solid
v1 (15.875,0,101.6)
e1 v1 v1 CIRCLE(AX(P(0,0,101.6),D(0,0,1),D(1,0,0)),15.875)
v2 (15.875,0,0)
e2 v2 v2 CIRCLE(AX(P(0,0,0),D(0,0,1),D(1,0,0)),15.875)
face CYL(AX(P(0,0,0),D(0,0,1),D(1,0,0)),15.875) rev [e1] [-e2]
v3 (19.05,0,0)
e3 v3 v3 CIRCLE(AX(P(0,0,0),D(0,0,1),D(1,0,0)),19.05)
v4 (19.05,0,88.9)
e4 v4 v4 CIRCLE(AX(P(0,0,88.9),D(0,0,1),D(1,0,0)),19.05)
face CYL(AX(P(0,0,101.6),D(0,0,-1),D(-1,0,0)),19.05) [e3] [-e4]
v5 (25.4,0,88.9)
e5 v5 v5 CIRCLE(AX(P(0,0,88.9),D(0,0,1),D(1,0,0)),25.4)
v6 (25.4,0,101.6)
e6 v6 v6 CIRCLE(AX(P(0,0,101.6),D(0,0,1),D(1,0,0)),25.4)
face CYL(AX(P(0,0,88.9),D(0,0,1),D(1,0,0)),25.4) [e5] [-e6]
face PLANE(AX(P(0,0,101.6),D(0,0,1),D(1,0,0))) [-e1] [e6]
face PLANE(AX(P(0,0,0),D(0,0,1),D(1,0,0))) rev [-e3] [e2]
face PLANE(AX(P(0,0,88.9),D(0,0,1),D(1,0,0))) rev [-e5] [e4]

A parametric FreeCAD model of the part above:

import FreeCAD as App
import Part
import Sketcher
from FreeCAD import Vector
Q = App.Units.Quantity

doc = App.newDocument("Part")
body = doc.addObject("PartDesign::Body", "Body")

# Sketch on XY plane
sketch1 = doc.addObject("Sketcher::SketchObject", "Sketch")
body.addObject(sketch1)
sketch1.AttachmentSupport = (doc.XY_Plane, [""])
sketch1.MapMode = "FlatFace"
sketch1.addGeometry(Part.Circle(Vector(0, 0, 0), Vector(0, 0, 1), 19), False)
sketch1.addConstraint([
    Sketcher.Constraint("Coincident", 0, 3, -1, 1),
    Sketcher.Constraint("Diameter", 0, Q("1.5 in")),
])
pad1 = doc.addObject("PartDesign::Pad", "Pad")
body.addObject(pad1)
pad1.Profile = sketch1
pad1.Length = Q("4 in")

# Sketch on XY plane
sketch2 = doc.addObject("Sketcher::SketchObject", "Sketch001")
body.addObject(sketch2)
sketch2.AttachmentSupport = (doc.XY_Plane, [""])
sketch2.MapMode = "FlatFace"
sketch2.AttachmentOffset = App.Placement(Vector(0, 0, 4 * 25.4), App.Rotation())
sketch2.addGeometry(Part.Circle(Vector(0, 0, 0), Vector(0, 0, 1), 16), False)
sketch2.addConstraint([
    Sketcher.Constraint("Coincident", 0, 3, -1, 1),
    Sketcher.Constraint("Diameter", 0, Q("1.25 in")),
])
pocket1 = doc.addObject("PartDesign::Pocket", "Pocket")
body.addObject(pocket1)
pocket1.Profile = sketch2
pocket1.Length = Q("4 in")

# Sketch on XY plane
sketch3 = doc.addObject("Sketcher::SketchObject", "Sketch002")
body.addObject(sketch3)
sketch3.AttachmentSupport = (doc.XY_Plane, [""])
sketch3.MapMode = "FlatFace"
sketch3.AttachmentOffset = App.Placement(Vector(0, 0, 4 * 25.4), App.Rotation())
sketch3.addGeometry(Part.Circle(Vector(0, 0, 0), Vector(0, 0, 1), 25), False)
sketch3.addConstraint([
    Sketcher.Constraint("Coincident", 0, 3, -1, 1),
    Sketcher.Constraint("Diameter", 0, Q("2 in")),
])
pad2 = doc.addObject("PartDesign::Pad", "Pad001")
body.addObject(pad2)
pad2.Profile = sketch3
pad2.Length = Q("0.5 in")
pad2.Reversed = True

# Sketch on XY plane
sketch4 = doc.addObject("Sketcher::SketchObject", "Sketch003")
body.addObject(sketch4)
sketch4.AttachmentSupport = (doc.XY_Plane, [""])
sketch4.MapMode = "FlatFace"
sketch4.AttachmentOffset = App.Placement(Vector(0, 0, 4 * 25.4), App.Rotation())
sketch4.addGeometry(Part.Circle(Vector(0, 0, 0), Vector(0, 0, 1), 16), False)
sketch4.addConstraint([
    Sketcher.Constraint("Coincident", 0, 3, -1, 1),
    Sketcher.Constraint("Diameter", 0, Q("1.25 in")),
])
pocket2 = doc.addObject("PartDesign::Pocket", "Pocket001")
body.addObject(pocket2)
pocket2.Profile = sketch4
pocket2.Length = Q("0.5 in")

doc.recompute()
